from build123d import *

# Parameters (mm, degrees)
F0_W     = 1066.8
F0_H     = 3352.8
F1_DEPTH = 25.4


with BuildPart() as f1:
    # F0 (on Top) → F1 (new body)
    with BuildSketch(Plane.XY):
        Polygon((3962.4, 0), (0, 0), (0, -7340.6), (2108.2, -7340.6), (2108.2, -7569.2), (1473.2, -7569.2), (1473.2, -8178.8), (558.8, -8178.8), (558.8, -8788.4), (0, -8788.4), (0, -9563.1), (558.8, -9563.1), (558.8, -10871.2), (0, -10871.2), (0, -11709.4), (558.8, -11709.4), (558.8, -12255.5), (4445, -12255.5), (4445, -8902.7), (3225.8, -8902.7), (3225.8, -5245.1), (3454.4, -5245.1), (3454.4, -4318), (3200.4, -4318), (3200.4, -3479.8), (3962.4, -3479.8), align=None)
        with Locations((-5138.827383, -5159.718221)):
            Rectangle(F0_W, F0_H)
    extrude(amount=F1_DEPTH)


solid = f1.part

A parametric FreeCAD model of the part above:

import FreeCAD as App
import Part
import Sketcher

V = App.Vector
Q = App.Units.Quantity

doc = App.newDocument("Part")
params = doc.addObject("Spreadsheet::Sheet", "Params")
for row, (alias, value) in enumerate([
    ("sketch1_width", "156 in"),
    ("sketch1_width2", "83 in"),
    ("sketch1_width3", "25 in"),
    ("sketch1_width4", "36 in"),
    ("sketch1_width5", "153 in"),
    ("pad1_length", "1 in"),
], start=1):
    params.set(f"A{row}", alias)
    params.set(f"B{row}", "=" + value)
    params.setAlias(f"B{row}", alias)

body = doc.addObject("PartDesign::Body", "Body")
body.AllowCompound = True

sketch1 = body.newObject("Sketcher::SketchObject", "Sketch")
sketch1.AttachmentSupport = (doc.getObject("XY_Plane"), [""])
sketch1.MapMode = "FlatFace"
sketch1.addGeometry(Part.LineSegment(V(3962, 0, 0), V(0, 0, 0)), False)
sketch1.addGeometry(Part.LineSegment(V(0, 0, 0), V(0, -7341, 0)), False)
sketch1.addGeometry(Part.LineSegment(V(0, -7341, 0), V(2108, -7341, 0)), False)
sketch1.addGeometry(Part.LineSegment(V(2108, -7341, 0), V(2108, -7569, 0)), False)
sketch1.addGeometry(Part.LineSegment(V(2108, -7569, 0), V(1473, -7569, 0)), False)
sketch1.addGeometry(Part.LineSegment(V(1473, -7569, 0), V(1473, -8179, 0)), False)
sketch1.addGeometry(Part.LineSegment(V(1473, -8179, 0), V(559, -8179, 0)), False)
sketch1.addGeometry(Part.LineSegment(V(559, -8179, 0), V(559, -8788, 0)), False)
sketch1.addGeometry(Part.LineSegment(V(559, -8788, 0), V(0, -8788, 0)), False)
sketch1.addGeometry(Part.LineSegment(V(0, -8788, 0), V(0, -9563, 0)), False)
sketch1.addGeometry(Part.LineSegment(V(0, -9563, 0), V(559, -9563, 0)), False)
sketch1.addGeometry(Part.LineSegment(V(559, -9563, 0), V(559, -10871, 0)), False)
sketch1.addGeometry(Part.LineSegment(V(559, -10871, 0), V(0, -10871, 0)), False)
sketch1.addGeometry(Part.LineSegment(V(0, -10871, 0), V(0, -11709, 0)), False)
sketch1.addGeometry(Part.LineSegment(V(0, -11709, 0), V(559, -11709, 0)), False)
sketch1.addGeometry(Part.LineSegment(V(559, -11709, 0), V(559, -12256, 0)), False)
sketch1.addGeometry(Part.LineSegment(V(559, -12256, 0), V(4445, -12256, 0)), False)
sketch1.addGeometry(Part.LineSegment(V(4445, -12256, 0), V(4445, -8903, 0)), False)
sketch1.addGeometry(Part.LineSegment(V(4445, -8903, 0), V(3226, -8903, 0)), False)
sketch1.addGeometry(Part.LineSegment(V(3226, -8903, 0), V(3226, -5245, 0)), False)
sketch1.addGeometry(Part.LineSegment(V(3226, -5245, 0), V(3454, -5245, 0)), False)
sketch1.addGeometry(Part.LineSegment(V(3454, -5245, 0), V(3454, -4318, 0)), False)
sketch1.addGeometry(Part.LineSegment(V(3454, -4318, 0), V(3200, -4318, 0)), False)
sketch1.addGeometry(Part.LineSegment(V(3200, -4318, 0), V(3200, -3480, 0)), False)
sketch1.addGeometry(Part.LineSegment(V(3200, -3480, 0), V(3962, -3480, 0)), False)
sketch1.addGeometry(Part.LineSegment(V(3962, -3480, 0), V(3962, 0, 0)), False)
sketch1.addGeometry(Part.LineSegment(V(-5672, -3483, 0), V(-5672, -6836, 0)), False)
sketch1.addGeometry(Part.LineSegment(V(-5672, -6836, 0), V(-4605, -6836, 0)), False)
sketch1.addGeometry(Part.LineSegment(V(-4605, -6836, 0), V(-4605, -3483, 0)), False)
sketch1.addGeometry(Part.LineSegment(V(-4605, -3483, 0), V(-5672, -3483, 0)), False)
sketch1.addConstraint(Sketcher.Constraint("Coincident", 0, 2, 1, 1))
sketch1.addConstraint(Sketcher.Constraint("Coincident", 1, 2, 2, 1))
sketch1.addConstraint(Sketcher.Constraint("Coincident", 2, 2, 3, 1))
sketch1.addConstraint(Sketcher.Constraint("Coincident", 3, 2, 4, 1))
sketch1.addConstraint(Sketcher.Constraint("Coincident", 4, 2, 5, 1))
sketch1.addConstraint(Sketcher.Constraint("Coincident", 5, 2, 6, 1))
sketch1.addConstraint(Sketcher.Constraint("Coincident", 6, 2, 7, 1))
sketch1.addConstraint(Sketcher.Constraint("Coincident", 7, 2, 8, 1))
sketch1.addConstraint(Sketcher.Constraint("Coincident", 8, 2, 9, 1))
sketch1.addConstraint(Sketcher.Constraint("Coincident", 9, 2, 10, 1))
sketch1.addConstraint(Sketcher.Constraint("Coincident", 10, 2, 11, 1))
sketch1.addConstraint(Sketcher.Constraint("Coincident", 11, 2, 12, 1))
sketch1.addConstraint(Sketcher.Constraint("Coincident", 12, 2, 13, 1))
sketch1.addConstraint(Sketcher.Constraint("Coincident", 13, 2, 14, 1))
sketch1.addConstraint(Sketcher.Constraint("Coincident", 14, 2, 15, 1))
sketch1.addConstraint(Sketcher.Constraint("Coincident", 15, 2, 16, 1))
sketch1.addConstraint(Sketcher.Constraint("Coincident", 16, 2, 17, 1))
sketch1.addConstraint(Sketcher.Constraint("Coincident", 17, 2, 18, 1))
sketch1.addConstraint(Sketcher.Constraint("Coincident", 18, 2, 19, 1))
sketch1.addConstraint(Sketcher.Constraint("Coincident", 19, 2, 20, 1))
sketch1.addConstraint(Sketcher.Constraint("Coincident", 20, 2, 21, 1))
sketch1.addConstraint(Sketcher.Constraint("Coincident", 21, 2, 22, 1))
sketch1.addConstraint(Sketcher.Constraint("Coincident", 22, 2, 23, 1))
sketch1.addConstraint(Sketcher.Constraint("Coincident", 23, 2, 24, 1))
sketch1.addConstraint(Sketcher.Constraint("Coincident", 24, 2, 25, 1))
sketch1.addConstraint(Sketcher.Constraint("Coincident", 25, 2, 0, 1))
sketch1.addConstraint(Sketcher.Constraint("Coincident", 26, 2, 27, 1))
sketch1.addConstraint(Sketcher.Constraint("Coincident", 27, 2, 28, 1))
sketch1.addConstraint(Sketcher.Constraint("Coincident", 28, 2, 29, 1))
sketch1.addConstraint(Sketcher.Constraint("Coincident", 29, 2, 26, 1))
sketch1.addConstraint(Sketcher.Constraint("Horizontal", 0))
sketch1.addConstraint(Sketcher.Constraint("Vertical", 1))
sketch1.addConstraint(Sketcher.Constraint("Horizontal", 2))
sketch1.addConstraint(Sketcher.Constraint("Vertical", 3))
sketch1.addConstraint(Sketcher.Constraint("Horizontal", 4))
sketch1.addConstraint(Sketcher.Constraint("Vertical", 5))
sketch1.addConstraint(Sketcher.Constraint("Horizontal", 6))
sketch1.addConstraint(Sketcher.Constraint("Vertical", 7))
sketch1.addConstraint(Sketcher.Constraint("Horizontal", 8))
sketch1.addConstraint(Sketcher.Constraint("Vertical", 9))
sketch1.addConstraint(Sketcher.Constraint("Horizontal", 10))
sketch1.addConstraint(Sketcher.Constraint("Vertical", 11))
sketch1.addConstraint(Sketcher.Constraint("Horizontal", 12))
sketch1.addConstraint(Sketcher.Constraint("Vertical", 13))
sketch1.addConstraint(Sketcher.Constraint("Horizontal", 14))
sketch1.addConstraint(Sketcher.Constraint("Vertical", 15))
sketch1.addConstraint(Sketcher.Constraint("Horizontal", 16))
sketch1.addConstraint(Sketcher.Constraint("Vertical", 17))
sketch1.addConstraint(Sketcher.Constraint("Horizontal", 18))
sketch1.addConstraint(Sketcher.Constraint("Vertical", 19))
sketch1.addConstraint(Sketcher.Constraint("Horizontal", 20))
sketch1.addConstraint(Sketcher.Constraint("Vertical", 21))
sketch1.addConstraint(Sketcher.Constraint("Horizontal", 22))
sketch1.addConstraint(Sketcher.Constraint("Vertical", 23))
sketch1.addConstraint(Sketcher.Constraint("Horizontal", 24))
sketch1.addConstraint(Sketcher.Constraint("Vertical", 25))
sketch1.addConstraint(Sketcher.Constraint("Vertical", 26))
sketch1.addConstraint(Sketcher.Constraint("Horizontal", 27))
sketch1.addConstraint(Sketcher.Constraint("Vertical", 28))
sketch1.addConstraint(Sketcher.Constraint("Horizontal", 29))
sketch1.addConstraint(Sketcher.Constraint("Coincident", 0, 2, -1, 1))
sketch1.addConstraint(Sketcher.Constraint("PointOnObject", 8, 2, -2))
sketch1.addConstraint(Sketcher.Constraint("PointOnObject", 12, 2, -2))
sketch1.addConstraint(Sketcher.Constraint("Vertical", 7, 2, 10, 2))
sketch1.addConstraint(Sketcher.Constraint("Vertical", 11, 2, 14, 2))
sketch1.addConstraint(Sketcher.Constraint("Equal", 20, 3))
sketch1.addConstraint(Sketcher.Constraint("Equal", 5, 7))
sketch1.addConstraint(Sketcher.Constraint("Equal", 13, 23))
sketch1.addConstraint(Sketcher.Constraint("Equal", 17, 26))
sketch1.addConstraint(Sketcher.Constraint("DistanceX", 0, 2, 0, 1, Q("156 in")))
sketch1.addConstraint(Sketcher.Constraint("DistanceX", 2, 1, 2, 2, Q("83 in")))
sketch1.addConstraint(Sketcher.Constraint("DistanceX", 4, 2, 4, 1, Q("25 in")))
sketch1.addConstraint(Sketcher.Constraint("DistanceX", 6, 2, 6, 1, Q("36 in")))
sketch1.addConstraint(Sketcher.Constraint("DistanceX", 16, 1, 16, 2, Q("153 in")))
sketch1.addConstraint(Sketcher.Constraint("DistanceX", 18, 2, 18, 1, Q("48 in")))
sketch1.addConstraint(Sketcher.Constraint("DistanceX", 20, 1, 20, 2, Q("9 in")))
sketch1.addConstraint(Sketcher.Constraint("DistanceX", 22, 2, 22, 1, Q("10 in")))
sketch1.addConstraint(Sketcher.Constraint("DistanceX", 27, 1, 27, 2, Q("42 in")))
sketch1.addConstraint(Sketcher.Constraint("DistanceY", 1, 2, 1, 1, Q("289 in")))
sketch1.addConstraint(Sketcher.Constraint("DistanceY", 5, 2, 5, 1, Q("24 in")))
sketch1.addConstraint(Sketcher.Constraint("DistanceY", 13, 2, 13, 1, Q("33 in")))
sketch1.addConstraint(Sketcher.Constraint("DistanceY", 17, 1, 17, 2, Q("132 in")))
sketch1.addConstraint(Sketcher.Constraint("DistanceY", 19, 1, 19, 2, Q("144 in")))
sketch1.addConstraint(Sketcher.Constraint("DistanceY", 25, 1, 25, 2, Q("137 in")))
sketch1.addConstraint(Sketcher.Constraint("DistanceY", 9, 2, 9, 1, Q("30.5 in")))
sketch1.addConstraint(Sketcher.Constraint("DistanceY", 11, 2, 11, 1, Q("51.5 in")))
sketch1.addConstraint(Sketcher.Constraint("DistanceY", 15, 2, 15, 1, Q("21.5 in")))
sketch1.addConstraint(Sketcher.Constraint("DistanceY", 26, 2, -1, 1, 6836.118221))
sketch1.addConstraint(Sketcher.Constraint("DistanceX", 26, 2, -1, 1, 5672.227383))
sketch1.setExpression("Constraints[69]", "Params.sketch1_width")
sketch1.setExpression("Constraints[70]", "Params.sketch1_width2")
sketch1.setExpression("Constraints[71]", "Params.sketch1_width3")
sketch1.setExpression("Constraints[72]", "Params.sketch1_width4")
sketch1.setExpression("Constraints[73]", "Params.sketch1_width5")
pad1 = body.newObject("PartDesign::Pad", "Pad")
pad1.Profile = sketch1
pad1.setExpression("Length", "Params.pad1_length")

doc.recompute()
